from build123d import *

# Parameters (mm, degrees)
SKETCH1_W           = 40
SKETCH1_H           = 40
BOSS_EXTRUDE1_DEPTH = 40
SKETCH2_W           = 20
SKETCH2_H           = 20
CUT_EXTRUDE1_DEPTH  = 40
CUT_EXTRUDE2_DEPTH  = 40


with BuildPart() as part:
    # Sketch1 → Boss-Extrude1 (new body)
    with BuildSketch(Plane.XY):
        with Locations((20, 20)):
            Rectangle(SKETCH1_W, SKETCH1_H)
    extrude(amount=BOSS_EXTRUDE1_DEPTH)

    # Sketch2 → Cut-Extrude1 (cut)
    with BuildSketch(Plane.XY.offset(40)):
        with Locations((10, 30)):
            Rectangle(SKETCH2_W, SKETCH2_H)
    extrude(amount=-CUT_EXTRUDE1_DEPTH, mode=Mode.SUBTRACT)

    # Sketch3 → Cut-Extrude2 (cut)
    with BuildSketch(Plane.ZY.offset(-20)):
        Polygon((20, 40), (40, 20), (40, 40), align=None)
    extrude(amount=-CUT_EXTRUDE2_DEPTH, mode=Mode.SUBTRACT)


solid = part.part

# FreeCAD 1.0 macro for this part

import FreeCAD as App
import Part
import Sketcher
from FreeCAD import Vector

doc = App.newDocument("Part")
body = doc.addObject("PartDesign::Body", "Body")

# Sketch on XY plane
sketch1 = body.newObject("Sketcher::SketchObject", "Sketch")
sketch1.AttachmentSupport = (doc.getObject("XY_Plane"), [""])
sketch1.MapMode = "FlatFace"
sketch1.addGeometry(Part.LineSegment(Vector(0, 40, 0), Vector(0, 0, 0)), False)
sketch1.addGeometry(Part.LineSegment(Vector(0, 0, 0), Vector(40, 0, 0)), False)
sketch1.addGeometry(Part.LineSegment(Vector(40, 0, 0), Vector(40, 40, 0)), False)
sketch1.addGeometry(Part.LineSegment(Vector(40, 40, 0), Vector(0, 40, 0)), False)
sketch1.addConstraint(Sketcher.Constraint("Coincident", 0, 2, 1, 1))
sketch1.addConstraint(Sketcher.Constraint("Coincident", 1, 2, 2, 1))
sketch1.addConstraint(Sketcher.Constraint("Coincident", 2, 2, 3, 1))
sketch1.addConstraint(Sketcher.Constraint("Coincident", 3, 2, 0, 1))
sketch1.addConstraint(Sketcher.Constraint("Vertical", 0))
sketch1.addConstraint(Sketcher.Constraint("Horizontal", 1))
sketch1.addConstraint(Sketcher.Constraint("Vertical", 2))
sketch1.addConstraint(Sketcher.Constraint("Horizontal", 3))
sketch1.addConstraint(Sketcher.Constraint("Coincident", 0, 2, -1, 1))
sketch1.addConstraint(Sketcher.Constraint("Equal", 3, 0))
sketch1.addConstraint(Sketcher.Constraint("DistanceX", 1, 1, 1, 2, 40.0))
pad1 = body.newObject("PartDesign::Pad", "Pad")
pad1.Profile = sketch1
pad1.Length = 40

# Sketch on XY plane
sketch2 = body.newObject("Sketcher::SketchObject", "Sketch001")
sketch2.AttachmentSupport = (doc.getObject("XY_Plane"), [""])
sketch2.MapMode = "FlatFace"
sketch2.AttachmentOffset = App.Placement(Vector(0, 0, 40), App.Rotation())
sketch2.addGeometry(Part.LineSegment(Vector(0, 40, 0), Vector(0, 20, 0)), False)
sketch2.addGeometry(Part.LineSegment(Vector(0, 20, 0), Vector(20, 20, 0)), False)
sketch2.addGeometry(Part.LineSegment(Vector(20, 20, 0), Vector(20, 40, 0)), False)
sketch2.addGeometry(Part.LineSegment(Vector(20, 40, 0), Vector(0, 40, 0)), False)
sketch2.addConstraint(Sketcher.Constraint("Coincident", 0, 2, 1, 1))
sketch2.addConstraint(Sketcher.Constraint("Coincident", 1, 2, 2, 1))
sketch2.addConstraint(Sketcher.Constraint("Coincident", 2, 2, 3, 1))
sketch2.addConstraint(Sketcher.Constraint("Coincident", 3, 2, 0, 1))
sketch2.addConstraint(Sketcher.Constraint("Vertical", 0))
sketch2.addConstraint(Sketcher.Constraint("Horizontal", 1))
sketch2.addConstraint(Sketcher.Constraint("Vertical", 2))
sketch2.addConstraint(Sketcher.Constraint("Horizontal", 3))
sketch2.addConstraint(Sketcher.Constraint("PointOnObject", 0, 2, -2))
sketch2.addConstraint(Sketcher.Constraint("Equal", 3, 0))
sketch2.addConstraint(Sketcher.Constraint("DistanceX", 1, 1, 1, 2, 20.0))
sketch2.addConstraint(Sketcher.Constraint("DistanceY", -1, 1, 0, 2, 20.0))
pocket1 = body.newObject("PartDesign::Pocket", "Pocket")
pocket1.Profile = sketch2
pocket1.Length = 40

# Sketch on YZ plane
sketch3 = body.newObject("Sketcher::SketchObject", "Sketch002")
sketch3.AttachmentSupport = (doc.getObject("YZ_Plane"), [""])
sketch3.MapMode = "FlatFace"
sketch3.AttachmentOffset = App.Placement(Vector(0, 0, 20), App.Rotation())
sketch3.addGeometry(Part.LineSegment(Vector(40, 20, 0), Vector(20, 40, 0)), False)
sketch3.addGeometry(Part.LineSegment(Vector(20, 40, 0), Vector(40, 40, 0)), False)
sketch3.addGeometry(Part.LineSegment(Vector(40, 40, 0), Vector(40, 20, 0)), False)
sketch3.addConstraint(Sketcher.Constraint("Coincident", 0, 2, 1, 1))
sketch3.addConstraint(Sketcher.Constraint("Coincident", 1, 2, 2, 1))
sketch3.addConstraint(Sketcher.Constraint("Coincident", 2, 2, 0, 1))
sketch3.addConstraint(Sketcher.Constraint("Horizontal", 1))
sketch3.addConstraint(Sketcher.Constraint("Vertical", 2))
sketch3.addConstraint(Sketcher.Constraint("Equal", 1, 2))
sketch3.addConstraint(Sketcher.Constraint("DistanceX", 1, 1, 1, 2, 20.0))
sketch3.addConstraint(Sketcher.Constraint("DistanceX", -1, 1, 0, 2, 20.0))
sketch3.addConstraint(Sketcher.Constraint("DistanceY", -1, 1, 0, 2, 40.0))
pocket2 = body.newObject("PartDesign::Pocket", "Pocket001")
pocket2.Profile = sketch3
pocket2.Length = 40
pocket2.Reversed = True

doc.recompute()
